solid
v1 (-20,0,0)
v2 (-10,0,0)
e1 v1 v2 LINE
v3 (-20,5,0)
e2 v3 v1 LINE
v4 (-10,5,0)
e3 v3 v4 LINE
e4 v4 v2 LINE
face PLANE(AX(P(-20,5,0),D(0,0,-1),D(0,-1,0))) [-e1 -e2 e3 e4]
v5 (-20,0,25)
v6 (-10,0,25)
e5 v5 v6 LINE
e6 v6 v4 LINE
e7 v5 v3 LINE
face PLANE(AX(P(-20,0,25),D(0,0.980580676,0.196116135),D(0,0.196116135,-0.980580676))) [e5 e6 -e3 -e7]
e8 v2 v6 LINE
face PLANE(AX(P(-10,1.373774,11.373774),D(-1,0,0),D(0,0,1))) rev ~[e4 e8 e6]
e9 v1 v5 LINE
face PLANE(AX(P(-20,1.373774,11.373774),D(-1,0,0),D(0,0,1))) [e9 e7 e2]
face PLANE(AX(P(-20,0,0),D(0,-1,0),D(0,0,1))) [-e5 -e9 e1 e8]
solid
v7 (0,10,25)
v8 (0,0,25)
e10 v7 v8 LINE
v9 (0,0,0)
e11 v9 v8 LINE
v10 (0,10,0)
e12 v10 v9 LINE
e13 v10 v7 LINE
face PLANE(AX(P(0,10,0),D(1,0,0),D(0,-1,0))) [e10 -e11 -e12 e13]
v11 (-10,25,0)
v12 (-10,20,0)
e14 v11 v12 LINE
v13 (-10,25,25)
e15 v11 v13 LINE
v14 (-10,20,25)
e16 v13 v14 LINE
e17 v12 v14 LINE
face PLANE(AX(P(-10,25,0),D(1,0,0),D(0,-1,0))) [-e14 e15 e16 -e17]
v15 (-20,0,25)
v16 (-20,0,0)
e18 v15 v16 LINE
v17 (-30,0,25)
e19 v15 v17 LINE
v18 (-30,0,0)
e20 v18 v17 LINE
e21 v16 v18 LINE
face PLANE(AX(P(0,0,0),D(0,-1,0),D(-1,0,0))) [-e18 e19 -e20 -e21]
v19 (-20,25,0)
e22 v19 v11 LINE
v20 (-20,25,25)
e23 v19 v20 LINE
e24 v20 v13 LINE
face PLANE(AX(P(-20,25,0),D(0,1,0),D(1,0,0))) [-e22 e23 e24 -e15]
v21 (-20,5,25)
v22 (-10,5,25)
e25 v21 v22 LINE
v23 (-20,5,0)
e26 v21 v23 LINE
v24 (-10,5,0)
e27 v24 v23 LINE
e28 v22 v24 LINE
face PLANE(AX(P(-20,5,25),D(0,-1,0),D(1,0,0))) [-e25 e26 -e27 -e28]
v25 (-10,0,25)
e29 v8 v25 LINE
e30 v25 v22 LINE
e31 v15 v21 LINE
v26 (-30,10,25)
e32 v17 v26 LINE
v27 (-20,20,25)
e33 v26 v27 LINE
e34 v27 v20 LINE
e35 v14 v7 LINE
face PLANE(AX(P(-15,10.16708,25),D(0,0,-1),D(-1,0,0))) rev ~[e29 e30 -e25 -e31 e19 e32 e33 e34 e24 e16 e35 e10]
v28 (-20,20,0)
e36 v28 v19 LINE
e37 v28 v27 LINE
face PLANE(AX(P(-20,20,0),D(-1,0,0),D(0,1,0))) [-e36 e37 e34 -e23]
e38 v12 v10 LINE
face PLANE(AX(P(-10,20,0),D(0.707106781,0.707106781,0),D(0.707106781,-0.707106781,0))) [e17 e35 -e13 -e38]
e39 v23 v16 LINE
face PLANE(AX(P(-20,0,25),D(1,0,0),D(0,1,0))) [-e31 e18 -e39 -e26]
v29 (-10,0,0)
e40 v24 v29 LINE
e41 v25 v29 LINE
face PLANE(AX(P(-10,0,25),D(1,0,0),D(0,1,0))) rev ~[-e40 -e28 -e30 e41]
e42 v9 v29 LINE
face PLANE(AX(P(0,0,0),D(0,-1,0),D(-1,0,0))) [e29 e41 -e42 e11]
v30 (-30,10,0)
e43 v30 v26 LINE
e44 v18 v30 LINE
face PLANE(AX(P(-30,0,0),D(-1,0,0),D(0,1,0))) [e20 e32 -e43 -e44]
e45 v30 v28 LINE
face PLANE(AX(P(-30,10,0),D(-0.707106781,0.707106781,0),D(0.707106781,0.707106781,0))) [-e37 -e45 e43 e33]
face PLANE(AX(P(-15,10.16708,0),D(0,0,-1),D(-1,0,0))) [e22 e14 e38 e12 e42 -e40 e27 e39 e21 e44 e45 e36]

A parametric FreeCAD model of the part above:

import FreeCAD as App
import Part
import Sketcher
from FreeCAD import Vector


def add_polygon(sketch, points):
    """Adds a closed chain of lines whose ends are joined by coincident constraints."""
    first, n = sketch.GeometryCount, len(points)
    for a, b in zip(points, points[1:] + points[:1]):
        sketch.addGeometry(Part.LineSegment(App.Vector(*a, 0), App.Vector(*b, 0)), False)
    for i in range(n):
        sketch.addConstraint(Sketcher.Constraint("Coincident", first + i, 2, first + (i + 1) % n, 1))

doc = App.newDocument("Part")
body = doc.addObject("PartDesign::Body", "Body")

sketch1 = body.newObject("Sketcher::SketchObject", "Sketch")
sketch1.AttachmentSupport = (doc.getObject("XY_Plane"), [""])
sketch1.MapMode = "FlatFace"
add_polygon(sketch1, [(-30, 10), (-30, 0), (0, 0), (0, 10), (-10, 20), (-10, 25), (-20, 25), (-20, 20)])
sketch1.addConstraint(Sketcher.Constraint("Vertical", 0))
sketch1.addConstraint(Sketcher.Constraint("Horizontal", 1))
sketch1.addConstraint(Sketcher.Constraint("Vertical", 2))
sketch1.addConstraint(Sketcher.Constraint("Vertical", 4))
sketch1.addConstraint(Sketcher.Constraint("Horizontal", 5))
sketch1.addConstraint(Sketcher.Constraint("Vertical", 6))
sketch1.addConstraint(Sketcher.Constraint("Coincident", 1, 2, -1, 1))
sketch1.addConstraint(Sketcher.Constraint("Perpendicular", 3, 7))
sketch1.addConstraint(Sketcher.Constraint("Horizontal", 3, 2, 6, 2))
sketch1.addConstraint(Sketcher.Constraint("Horizontal", 2, 2, 7, 2))
sketch1.addConstraint(Sketcher.Constraint("Equal", 5, 0))
sketch1.addConstraint(Sketcher.Constraint("Equal", 3, 7))
sketch1.addConstraint(Sketcher.Constraint("DistanceX", 1, 1, 1, 2, 30.0))
sketch1.addConstraint(Sketcher.Constraint("DistanceX", 5, 2, 5, 1, 10.0))
sketch1.addConstraint(Sketcher.Constraint("DistanceY", 4, 1, 4, 2, 5.0))
pad1 = body.newObject("PartDesign::Pad", "Pad")
pad1.Profile = sketch1
pad1.Length = 25

sketch2 = body.newObject("Sketcher::SketchObject", "Sketch001")
sketch2.AttachmentSupport = (doc.getObject("XY_Plane"), [""])
sketch2.MapMode = "FlatFace"
sketch2.AttachmentOffset = App.Placement(Vector(0, 0, 25), App.Rotation())
add_polygon(sketch2, [(-20, 5), (-20, 0), (-10, 0), (-10, 5)])
sketch2.addConstraint(Sketcher.Constraint("Vertical", 0))
sketch2.addConstraint(Sketcher.Constraint("Horizontal", 1))
sketch2.addConstraint(Sketcher.Constraint("Vertical", 2))
sketch2.addConstraint(Sketcher.Constraint("Horizontal", 3))
sketch2.addConstraint(Sketcher.Constraint("PointOnObject", 0, 2, -1))
sketch2.addConstraint(Sketcher.Constraint("DistanceX", 1, 1, 1, 2, 10.0))
sketch2.addConstraint(Sketcher.Constraint("DistanceY", 0, 2, 0, 1, 5.0))
sketch2.addConstraint(Sketcher.Constraint("DistanceX", 0, 2, -1, 1, 20.0))
pocket1 = body.newObject("PartDesign::Pocket", "Pocket")
pocket1.Profile = sketch2
pocket1.Length = 46
body2 = doc.addObject("PartDesign::Body", "Body001")

sketch3 = body2.newObject("Sketcher::SketchObject", "Sketch002")
sketch3.AttachmentSupport = (doc.getObject("YZ_Plane001"), [""])
sketch3.MapMode = "FlatFace"
sketch3.AttachmentOffset = App.Placement(Vector(0, 0, -20), App.Rotation())
add_polygon(sketch3, [(5, 0), (0, 25), (0, 0)])
sketch3.addConstraint(Sketcher.Constraint("Vertical", 1))
sketch3.addConstraint(Sketcher.Constraint("Horizontal", 2))
sketch3.addConstraint(Sketcher.Constraint("Coincident", 1, 2, -1, 1))
sketch3.addConstraint(Sketcher.Constraint("DistanceX", 2, 1, 2, 2, 5.0))
sketch3.addConstraint(Sketcher.Constraint("DistanceY", 1, 2, 1, 1, 25.0))
pad2 = body2.newObject("PartDesign::Pad", "Pad001")
pad2.Profile = sketch3
pad2.Length = 10

doc.recompute()
